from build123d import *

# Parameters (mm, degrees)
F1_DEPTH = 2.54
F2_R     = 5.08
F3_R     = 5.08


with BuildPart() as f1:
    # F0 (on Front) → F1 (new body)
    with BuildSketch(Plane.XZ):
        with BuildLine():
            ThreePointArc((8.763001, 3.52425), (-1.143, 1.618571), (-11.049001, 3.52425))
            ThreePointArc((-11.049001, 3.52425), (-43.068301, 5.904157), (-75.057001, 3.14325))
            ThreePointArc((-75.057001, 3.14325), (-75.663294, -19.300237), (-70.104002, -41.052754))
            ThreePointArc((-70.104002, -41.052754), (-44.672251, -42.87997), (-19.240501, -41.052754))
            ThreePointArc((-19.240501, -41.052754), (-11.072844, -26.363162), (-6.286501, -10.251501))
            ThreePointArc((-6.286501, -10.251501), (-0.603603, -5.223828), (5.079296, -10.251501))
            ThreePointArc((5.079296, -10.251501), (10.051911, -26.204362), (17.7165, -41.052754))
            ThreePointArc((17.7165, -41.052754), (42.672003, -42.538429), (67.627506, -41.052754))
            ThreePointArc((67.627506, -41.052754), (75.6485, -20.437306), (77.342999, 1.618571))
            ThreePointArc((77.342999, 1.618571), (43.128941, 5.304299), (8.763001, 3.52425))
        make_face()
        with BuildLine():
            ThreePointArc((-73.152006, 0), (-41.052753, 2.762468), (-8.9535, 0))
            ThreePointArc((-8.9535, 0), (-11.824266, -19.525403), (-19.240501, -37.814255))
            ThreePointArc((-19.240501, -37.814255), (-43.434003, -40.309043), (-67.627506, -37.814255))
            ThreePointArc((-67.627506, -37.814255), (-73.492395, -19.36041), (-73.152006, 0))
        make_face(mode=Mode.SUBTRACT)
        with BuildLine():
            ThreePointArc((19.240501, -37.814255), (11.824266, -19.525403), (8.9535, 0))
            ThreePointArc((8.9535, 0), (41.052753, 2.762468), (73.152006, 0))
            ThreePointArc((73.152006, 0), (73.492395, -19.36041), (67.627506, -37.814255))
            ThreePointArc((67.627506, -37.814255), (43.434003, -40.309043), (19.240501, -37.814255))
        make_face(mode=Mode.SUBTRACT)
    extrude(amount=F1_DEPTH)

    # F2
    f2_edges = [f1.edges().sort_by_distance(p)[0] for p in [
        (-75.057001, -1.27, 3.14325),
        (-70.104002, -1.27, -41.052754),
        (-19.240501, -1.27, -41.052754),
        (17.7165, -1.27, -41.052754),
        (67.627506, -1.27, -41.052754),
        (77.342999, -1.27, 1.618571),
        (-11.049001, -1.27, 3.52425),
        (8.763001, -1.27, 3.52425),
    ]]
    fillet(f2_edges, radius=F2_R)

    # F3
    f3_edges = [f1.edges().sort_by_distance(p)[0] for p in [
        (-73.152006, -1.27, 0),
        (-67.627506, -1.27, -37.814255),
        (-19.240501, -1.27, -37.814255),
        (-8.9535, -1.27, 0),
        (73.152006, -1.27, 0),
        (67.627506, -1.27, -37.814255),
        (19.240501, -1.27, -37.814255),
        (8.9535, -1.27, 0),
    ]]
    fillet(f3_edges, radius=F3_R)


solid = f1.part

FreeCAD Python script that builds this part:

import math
import FreeCAD as App
import Part
import Sketcher

V = App.Vector
Q = App.Units.Quantity


def edges_at(feature, points):
    """Names of the edges that pass closest to the given points."""
    edges = feature.Shape.Edges
    near = lambda p: min(range(len(edges)), key=lambda i: edges[i].distToShape(Part.Vertex(*p))[0])
    return sorted({f"Edge{near(p) + 1}" for p in points})

doc = App.newDocument("Part")
body = doc.addObject("PartDesign::Body", "Body")

sketch1 = doc.addObject("Sketcher::SketchObject", "Sketch")
body.addObject(sketch1)
sketch1.AttachmentSupport = (doc.XZ_Plane, [""])
sketch1.MapMode = "FlatFace"
sketch1.addGeometry([
    Part.ArcOfCircle(Part.Circle(V(-1, 28, 0), V(0, 0, 1), 27), math.radians(-112), math.radians(-68)),
    Part.ArcOfCircle(Part.Circle(V(-42, -195, 0), V(0, 0, 1), 201), math.radians(81.16), math.radians(99.52)),
    Part.ArcOfCircle(Part.Circle(V(5, -10, 0), V(0, 0, 1), 81), math.radians(171), math.radians(202)),
    Part.ArcOfCircle(Part.Circle(V(-45, 135, 0), V(0, 0, 1), 178), math.radians(-98.22), math.radians(-81.78)),
    Part.ArcOfCircle(Part.Circle(V(-82, 3, 0), V(0, 0, 1), 77), math.radians(-35), math.radians(-10)),
    Part.ArcOfCircle(Part.Circle(V(-1, -11, 0), V(0, 0, 1), 6), math.radians(7), math.radians(173)),
    Part.ArcOfCircle(Part.Circle(V(99, 10, 0), V(0, 0, 1), 96), math.radians(-167.68), math.radians(-147.7)),
    Part.ArcOfCircle(Part.Circle(V(43, 168, 0), V(0, 0, 1), 210), math.radians(-96.81), math.radians(-83.19)),
    Part.ArcOfCircle(Part.Circle(V(2, -4, 0), V(0, 0, 1), 75), math.radians(-30), math.radians(4)),
    Part.ArcOfCircle(Part.Circle(V(37, -211, 0), V(0, 0, 1), 217), math.radians(79.29), math.radians(97.52)),
    Part.ArcOfCircle(Part.Circle(V(-14, -11, 0), V(0, 0, 1), 60), math.radians(170), math.radians(207)),
    Part.ArcOfCircle(Part.Circle(V(-41, -185, 0), V(0, 0, 1), 188), math.radians(80.16), math.radians(99.84)),
    Part.ArcOfCircle(Part.Circle(V(-92, 2, 0), V(0, 0, 1), 83), math.radians(-29), math.radians(-2)),
    Part.ArcOfCircle(Part.Circle(V(-43, 78, 0), V(0, 0, 1), 119), math.radians(-102), math.radians(-78)),
    Part.ArcOfCircle(Part.Circle(V(43, 78, 0), V(0, 0, 1), 119), math.radians(-102), math.radians(-78)),
    Part.ArcOfCircle(Part.Circle(V(92, 2, 0), V(0, 0, 1), 83), math.radians(-178), math.radians(-151)),
    Part.ArcOfCircle(Part.Circle(V(41, -185, 0), V(0, 0, 1), 188), math.radians(80.16), math.radians(99.84)),
    Part.ArcOfCircle(Part.Circle(V(14, -11, 0), V(0, 0, 1), 60), math.radians(-27), math.radians(10)),
], False)
sketch1.addConstraint([
    Sketcher.Constraint("Coincident", 0, 1, 1, 1),
    Sketcher.Constraint("Coincident", 1, 2, 2, 1),
    Sketcher.Constraint("Coincident", 2, 2, 3, 1),
    Sketcher.Constraint("Coincident", 3, 2, 4, 1),
    Sketcher.Constraint("Coincident", 4, 2, 5, 2),
    Sketcher.Constraint("Coincident", 5, 1, 6, 1),
    Sketcher.Constraint("Coincident", 6, 2, 7, 1),
    Sketcher.Constraint("Coincident", 7, 2, 8, 1),
    Sketcher.Constraint("Coincident", 8, 2, 9, 1),
    Sketcher.Constraint("Coincident", 9, 2, 0, 2),
    Sketcher.Constraint("Coincident", 10, 1, 11, 2),
    Sketcher.Constraint("Coincident", 11, 1, 12, 2),
    Sketcher.Constraint("Coincident", 12, 1, 13, 2),
    Sketcher.Constraint("Coincident", 13, 1, 10, 2),
    Sketcher.Constraint("Coincident", 14, 1, 15, 2),
    Sketcher.Constraint("Coincident", 15, 1, 16, 2),
    Sketcher.Constraint("Coincident", 16, 1, 17, 2),
    Sketcher.Constraint("Coincident", 17, 1, 14, 2),
    Sketcher.Constraint("Coincident", 5, 1, 2, 3),
    Sketcher.Constraint("Equal", 13, 14),
    Sketcher.Constraint("Equal", 12, 15),
    Sketcher.Constraint("Equal", 11, 16),
    Sketcher.Constraint("Equal", 10, 17),
    Sketcher.Constraint("Symmetric", 11, 1, 15, 1, -1, 1),
    Sketcher.Constraint("Symmetric", 10, 1, 16, 1, -1, 1),
    Sketcher.Constraint("Symmetric", 13, 3, 14, 3, -2),
    Sketcher.Constraint("Symmetric", 12, 3, 15, 3, -2),
    Sketcher.Constraint("Symmetric", 10, 3, 17, 3, -2),
    Sketcher.Constraint("Horizontal", 2, 2, 3, 2),
    Sketcher.Constraint("Horizontal", 2, 3, 4, 2),
    Sketcher.Constraint("Horizontal", 3, 2, 6, 2),
    Sketcher.Constraint("Horizontal", 6, 2, 7, 2),
    Sketcher.Constraint("Horizontal", 0, 1, 9, 2),
    Sketcher.Constraint("Horizontal", 12, 1, 13, 1),
    Sketcher.Constraint("Vertical", 3, 2, 12, 1),
    Sketcher.Constraint("Vertical", 7, 2, 17, 1),
    Sketcher.Constraint("DistanceX", -1, 1, 7, 3, Q("1.6800001 in")),
    Sketcher.Constraint("DistanceX", 13, 3, -1, 1, Q("1.7100001 in")),
    Sketcher.Constraint("DistanceX", 2, 2, -1, 1, Q("2.7600001 in")),
    Sketcher.Constraint("Radius", 1, Q("200.528802 mm")),
    Sketcher.Constraint("DistanceX", 0, 1, 0, 3, Q("0.39 in")),
    Sketcher.Constraint("DistanceX", 1, 2, 0, 1, Q("2.52 in")),
    Sketcher.Constraint("DistanceY", 2, 2, 1, 2, Q("1.7400002 in")),
    Sketcher.Constraint("DistanceX", 10, 1, 2, 2, Q("0.1200002 in")),
    Sketcher.Constraint("DistanceX", 12, 1, 4, 2, Q("0.51 in")),
    Sketcher.Constraint("DistanceX", 0, 3, -1, 1, Q("0.045 in")),
    Sketcher.Constraint("DistanceX", -1, 1, 8, 2, Q("3.045 in")),
    Sketcher.Constraint("Radius", 2, Q("81.24805 mm")),
    Sketcher.Constraint("Radius", 4, Q("77.012171 mm")),
    Sketcher.Constraint("Radius", 8, Q("75.41656 mm")),
    Sketcher.Constraint("Radius", 9, Q("216.571121 mm")),
    Sketcher.Constraint("Radius", 10, Q("59.788279 mm")),
    Sketcher.Constraint("Radius", 11, Q("187.874262 mm")),
    Sketcher.Constraint("DistanceY", 1, 2, 0, 1, Q("0.015 in")),
    Sketcher.Constraint("DistanceX", 0, 1, 4, 2, Q("0.1875 in")),
    Sketcher.Constraint("DistanceX", 11, 1, 4, 2, Q("0.105 in")),
    Sketcher.Constraint("Radius", 0, Q("26.699268 mm")),
    Sketcher.Constraint("Radius", 3, Q("177.897044 mm")),
    Sketcher.Constraint("Radius", 5, Q("5.725594 mm")),
    Sketcher.Constraint("Radius", 6, Q("95.960757 mm")),
    Sketcher.Constraint("Radius", 7, Q("210.336837 mm")),
    Sketcher.Constraint("Radius", 12, Q("82.681068 mm")),
    Sketcher.Constraint("Radius", 13, Q("118.557074 mm")),
    Sketcher.Constraint("DistanceY", 3, 2, 12, 1, Q("0.1275 in")),
    Sketcher.Constraint("DistanceY", 2, 3, -1, 1, Q("10.251501 mm")),
    Sketcher.Constraint("DistanceX", 9, 3, 16, 3, Q("3.939499 mm")),
])
pad1 = doc.addObject("PartDesign::Pad", "Pad")
body.addObject(pad1)
pad1.Profile = sketch1
pad1.Length = Q("0.1 in")
doc.recompute()

fillet = doc.addObject("PartDesign::Fillet", "Fillet")
body.addObject(fillet)
fillet.Base = (pad1, edges_at(pad1, [
    (-75.057, -1.27, 3.143),
    (-70.104, -1.27, -41.053),
    (-19.241, -1.27, -41.053),
    (17.716, -1.27, -41.053),
    (67.628, -1.27, -41.053),
    (77.343, -1.27, 1.619),
    (-11.049, -1.27, 3.524),
    (8.763, -1.27, 3.524),
]))
fillet.Radius = Q("0.2 in")
doc.recompute()

fillet2 = doc.addObject("PartDesign::Fillet", "Fillet001")
body.addObject(fillet2)
fillet2.Base = (fillet, edges_at(fillet, [
    (-73.152, -1.27, 0),
    (-67.628, -1.27, -37.814),
    (-19.241, -1.27, -37.814),
    (-8.954, -1.27, 0),
    (73.152, -1.27, 0),
    (67.628, -1.27, -37.814),
    (19.241, -1.27, -37.814),
    (8.954, -1.27, 0),
]))
fillet2.Radius = Q("0.2 in")

doc.recompute()
